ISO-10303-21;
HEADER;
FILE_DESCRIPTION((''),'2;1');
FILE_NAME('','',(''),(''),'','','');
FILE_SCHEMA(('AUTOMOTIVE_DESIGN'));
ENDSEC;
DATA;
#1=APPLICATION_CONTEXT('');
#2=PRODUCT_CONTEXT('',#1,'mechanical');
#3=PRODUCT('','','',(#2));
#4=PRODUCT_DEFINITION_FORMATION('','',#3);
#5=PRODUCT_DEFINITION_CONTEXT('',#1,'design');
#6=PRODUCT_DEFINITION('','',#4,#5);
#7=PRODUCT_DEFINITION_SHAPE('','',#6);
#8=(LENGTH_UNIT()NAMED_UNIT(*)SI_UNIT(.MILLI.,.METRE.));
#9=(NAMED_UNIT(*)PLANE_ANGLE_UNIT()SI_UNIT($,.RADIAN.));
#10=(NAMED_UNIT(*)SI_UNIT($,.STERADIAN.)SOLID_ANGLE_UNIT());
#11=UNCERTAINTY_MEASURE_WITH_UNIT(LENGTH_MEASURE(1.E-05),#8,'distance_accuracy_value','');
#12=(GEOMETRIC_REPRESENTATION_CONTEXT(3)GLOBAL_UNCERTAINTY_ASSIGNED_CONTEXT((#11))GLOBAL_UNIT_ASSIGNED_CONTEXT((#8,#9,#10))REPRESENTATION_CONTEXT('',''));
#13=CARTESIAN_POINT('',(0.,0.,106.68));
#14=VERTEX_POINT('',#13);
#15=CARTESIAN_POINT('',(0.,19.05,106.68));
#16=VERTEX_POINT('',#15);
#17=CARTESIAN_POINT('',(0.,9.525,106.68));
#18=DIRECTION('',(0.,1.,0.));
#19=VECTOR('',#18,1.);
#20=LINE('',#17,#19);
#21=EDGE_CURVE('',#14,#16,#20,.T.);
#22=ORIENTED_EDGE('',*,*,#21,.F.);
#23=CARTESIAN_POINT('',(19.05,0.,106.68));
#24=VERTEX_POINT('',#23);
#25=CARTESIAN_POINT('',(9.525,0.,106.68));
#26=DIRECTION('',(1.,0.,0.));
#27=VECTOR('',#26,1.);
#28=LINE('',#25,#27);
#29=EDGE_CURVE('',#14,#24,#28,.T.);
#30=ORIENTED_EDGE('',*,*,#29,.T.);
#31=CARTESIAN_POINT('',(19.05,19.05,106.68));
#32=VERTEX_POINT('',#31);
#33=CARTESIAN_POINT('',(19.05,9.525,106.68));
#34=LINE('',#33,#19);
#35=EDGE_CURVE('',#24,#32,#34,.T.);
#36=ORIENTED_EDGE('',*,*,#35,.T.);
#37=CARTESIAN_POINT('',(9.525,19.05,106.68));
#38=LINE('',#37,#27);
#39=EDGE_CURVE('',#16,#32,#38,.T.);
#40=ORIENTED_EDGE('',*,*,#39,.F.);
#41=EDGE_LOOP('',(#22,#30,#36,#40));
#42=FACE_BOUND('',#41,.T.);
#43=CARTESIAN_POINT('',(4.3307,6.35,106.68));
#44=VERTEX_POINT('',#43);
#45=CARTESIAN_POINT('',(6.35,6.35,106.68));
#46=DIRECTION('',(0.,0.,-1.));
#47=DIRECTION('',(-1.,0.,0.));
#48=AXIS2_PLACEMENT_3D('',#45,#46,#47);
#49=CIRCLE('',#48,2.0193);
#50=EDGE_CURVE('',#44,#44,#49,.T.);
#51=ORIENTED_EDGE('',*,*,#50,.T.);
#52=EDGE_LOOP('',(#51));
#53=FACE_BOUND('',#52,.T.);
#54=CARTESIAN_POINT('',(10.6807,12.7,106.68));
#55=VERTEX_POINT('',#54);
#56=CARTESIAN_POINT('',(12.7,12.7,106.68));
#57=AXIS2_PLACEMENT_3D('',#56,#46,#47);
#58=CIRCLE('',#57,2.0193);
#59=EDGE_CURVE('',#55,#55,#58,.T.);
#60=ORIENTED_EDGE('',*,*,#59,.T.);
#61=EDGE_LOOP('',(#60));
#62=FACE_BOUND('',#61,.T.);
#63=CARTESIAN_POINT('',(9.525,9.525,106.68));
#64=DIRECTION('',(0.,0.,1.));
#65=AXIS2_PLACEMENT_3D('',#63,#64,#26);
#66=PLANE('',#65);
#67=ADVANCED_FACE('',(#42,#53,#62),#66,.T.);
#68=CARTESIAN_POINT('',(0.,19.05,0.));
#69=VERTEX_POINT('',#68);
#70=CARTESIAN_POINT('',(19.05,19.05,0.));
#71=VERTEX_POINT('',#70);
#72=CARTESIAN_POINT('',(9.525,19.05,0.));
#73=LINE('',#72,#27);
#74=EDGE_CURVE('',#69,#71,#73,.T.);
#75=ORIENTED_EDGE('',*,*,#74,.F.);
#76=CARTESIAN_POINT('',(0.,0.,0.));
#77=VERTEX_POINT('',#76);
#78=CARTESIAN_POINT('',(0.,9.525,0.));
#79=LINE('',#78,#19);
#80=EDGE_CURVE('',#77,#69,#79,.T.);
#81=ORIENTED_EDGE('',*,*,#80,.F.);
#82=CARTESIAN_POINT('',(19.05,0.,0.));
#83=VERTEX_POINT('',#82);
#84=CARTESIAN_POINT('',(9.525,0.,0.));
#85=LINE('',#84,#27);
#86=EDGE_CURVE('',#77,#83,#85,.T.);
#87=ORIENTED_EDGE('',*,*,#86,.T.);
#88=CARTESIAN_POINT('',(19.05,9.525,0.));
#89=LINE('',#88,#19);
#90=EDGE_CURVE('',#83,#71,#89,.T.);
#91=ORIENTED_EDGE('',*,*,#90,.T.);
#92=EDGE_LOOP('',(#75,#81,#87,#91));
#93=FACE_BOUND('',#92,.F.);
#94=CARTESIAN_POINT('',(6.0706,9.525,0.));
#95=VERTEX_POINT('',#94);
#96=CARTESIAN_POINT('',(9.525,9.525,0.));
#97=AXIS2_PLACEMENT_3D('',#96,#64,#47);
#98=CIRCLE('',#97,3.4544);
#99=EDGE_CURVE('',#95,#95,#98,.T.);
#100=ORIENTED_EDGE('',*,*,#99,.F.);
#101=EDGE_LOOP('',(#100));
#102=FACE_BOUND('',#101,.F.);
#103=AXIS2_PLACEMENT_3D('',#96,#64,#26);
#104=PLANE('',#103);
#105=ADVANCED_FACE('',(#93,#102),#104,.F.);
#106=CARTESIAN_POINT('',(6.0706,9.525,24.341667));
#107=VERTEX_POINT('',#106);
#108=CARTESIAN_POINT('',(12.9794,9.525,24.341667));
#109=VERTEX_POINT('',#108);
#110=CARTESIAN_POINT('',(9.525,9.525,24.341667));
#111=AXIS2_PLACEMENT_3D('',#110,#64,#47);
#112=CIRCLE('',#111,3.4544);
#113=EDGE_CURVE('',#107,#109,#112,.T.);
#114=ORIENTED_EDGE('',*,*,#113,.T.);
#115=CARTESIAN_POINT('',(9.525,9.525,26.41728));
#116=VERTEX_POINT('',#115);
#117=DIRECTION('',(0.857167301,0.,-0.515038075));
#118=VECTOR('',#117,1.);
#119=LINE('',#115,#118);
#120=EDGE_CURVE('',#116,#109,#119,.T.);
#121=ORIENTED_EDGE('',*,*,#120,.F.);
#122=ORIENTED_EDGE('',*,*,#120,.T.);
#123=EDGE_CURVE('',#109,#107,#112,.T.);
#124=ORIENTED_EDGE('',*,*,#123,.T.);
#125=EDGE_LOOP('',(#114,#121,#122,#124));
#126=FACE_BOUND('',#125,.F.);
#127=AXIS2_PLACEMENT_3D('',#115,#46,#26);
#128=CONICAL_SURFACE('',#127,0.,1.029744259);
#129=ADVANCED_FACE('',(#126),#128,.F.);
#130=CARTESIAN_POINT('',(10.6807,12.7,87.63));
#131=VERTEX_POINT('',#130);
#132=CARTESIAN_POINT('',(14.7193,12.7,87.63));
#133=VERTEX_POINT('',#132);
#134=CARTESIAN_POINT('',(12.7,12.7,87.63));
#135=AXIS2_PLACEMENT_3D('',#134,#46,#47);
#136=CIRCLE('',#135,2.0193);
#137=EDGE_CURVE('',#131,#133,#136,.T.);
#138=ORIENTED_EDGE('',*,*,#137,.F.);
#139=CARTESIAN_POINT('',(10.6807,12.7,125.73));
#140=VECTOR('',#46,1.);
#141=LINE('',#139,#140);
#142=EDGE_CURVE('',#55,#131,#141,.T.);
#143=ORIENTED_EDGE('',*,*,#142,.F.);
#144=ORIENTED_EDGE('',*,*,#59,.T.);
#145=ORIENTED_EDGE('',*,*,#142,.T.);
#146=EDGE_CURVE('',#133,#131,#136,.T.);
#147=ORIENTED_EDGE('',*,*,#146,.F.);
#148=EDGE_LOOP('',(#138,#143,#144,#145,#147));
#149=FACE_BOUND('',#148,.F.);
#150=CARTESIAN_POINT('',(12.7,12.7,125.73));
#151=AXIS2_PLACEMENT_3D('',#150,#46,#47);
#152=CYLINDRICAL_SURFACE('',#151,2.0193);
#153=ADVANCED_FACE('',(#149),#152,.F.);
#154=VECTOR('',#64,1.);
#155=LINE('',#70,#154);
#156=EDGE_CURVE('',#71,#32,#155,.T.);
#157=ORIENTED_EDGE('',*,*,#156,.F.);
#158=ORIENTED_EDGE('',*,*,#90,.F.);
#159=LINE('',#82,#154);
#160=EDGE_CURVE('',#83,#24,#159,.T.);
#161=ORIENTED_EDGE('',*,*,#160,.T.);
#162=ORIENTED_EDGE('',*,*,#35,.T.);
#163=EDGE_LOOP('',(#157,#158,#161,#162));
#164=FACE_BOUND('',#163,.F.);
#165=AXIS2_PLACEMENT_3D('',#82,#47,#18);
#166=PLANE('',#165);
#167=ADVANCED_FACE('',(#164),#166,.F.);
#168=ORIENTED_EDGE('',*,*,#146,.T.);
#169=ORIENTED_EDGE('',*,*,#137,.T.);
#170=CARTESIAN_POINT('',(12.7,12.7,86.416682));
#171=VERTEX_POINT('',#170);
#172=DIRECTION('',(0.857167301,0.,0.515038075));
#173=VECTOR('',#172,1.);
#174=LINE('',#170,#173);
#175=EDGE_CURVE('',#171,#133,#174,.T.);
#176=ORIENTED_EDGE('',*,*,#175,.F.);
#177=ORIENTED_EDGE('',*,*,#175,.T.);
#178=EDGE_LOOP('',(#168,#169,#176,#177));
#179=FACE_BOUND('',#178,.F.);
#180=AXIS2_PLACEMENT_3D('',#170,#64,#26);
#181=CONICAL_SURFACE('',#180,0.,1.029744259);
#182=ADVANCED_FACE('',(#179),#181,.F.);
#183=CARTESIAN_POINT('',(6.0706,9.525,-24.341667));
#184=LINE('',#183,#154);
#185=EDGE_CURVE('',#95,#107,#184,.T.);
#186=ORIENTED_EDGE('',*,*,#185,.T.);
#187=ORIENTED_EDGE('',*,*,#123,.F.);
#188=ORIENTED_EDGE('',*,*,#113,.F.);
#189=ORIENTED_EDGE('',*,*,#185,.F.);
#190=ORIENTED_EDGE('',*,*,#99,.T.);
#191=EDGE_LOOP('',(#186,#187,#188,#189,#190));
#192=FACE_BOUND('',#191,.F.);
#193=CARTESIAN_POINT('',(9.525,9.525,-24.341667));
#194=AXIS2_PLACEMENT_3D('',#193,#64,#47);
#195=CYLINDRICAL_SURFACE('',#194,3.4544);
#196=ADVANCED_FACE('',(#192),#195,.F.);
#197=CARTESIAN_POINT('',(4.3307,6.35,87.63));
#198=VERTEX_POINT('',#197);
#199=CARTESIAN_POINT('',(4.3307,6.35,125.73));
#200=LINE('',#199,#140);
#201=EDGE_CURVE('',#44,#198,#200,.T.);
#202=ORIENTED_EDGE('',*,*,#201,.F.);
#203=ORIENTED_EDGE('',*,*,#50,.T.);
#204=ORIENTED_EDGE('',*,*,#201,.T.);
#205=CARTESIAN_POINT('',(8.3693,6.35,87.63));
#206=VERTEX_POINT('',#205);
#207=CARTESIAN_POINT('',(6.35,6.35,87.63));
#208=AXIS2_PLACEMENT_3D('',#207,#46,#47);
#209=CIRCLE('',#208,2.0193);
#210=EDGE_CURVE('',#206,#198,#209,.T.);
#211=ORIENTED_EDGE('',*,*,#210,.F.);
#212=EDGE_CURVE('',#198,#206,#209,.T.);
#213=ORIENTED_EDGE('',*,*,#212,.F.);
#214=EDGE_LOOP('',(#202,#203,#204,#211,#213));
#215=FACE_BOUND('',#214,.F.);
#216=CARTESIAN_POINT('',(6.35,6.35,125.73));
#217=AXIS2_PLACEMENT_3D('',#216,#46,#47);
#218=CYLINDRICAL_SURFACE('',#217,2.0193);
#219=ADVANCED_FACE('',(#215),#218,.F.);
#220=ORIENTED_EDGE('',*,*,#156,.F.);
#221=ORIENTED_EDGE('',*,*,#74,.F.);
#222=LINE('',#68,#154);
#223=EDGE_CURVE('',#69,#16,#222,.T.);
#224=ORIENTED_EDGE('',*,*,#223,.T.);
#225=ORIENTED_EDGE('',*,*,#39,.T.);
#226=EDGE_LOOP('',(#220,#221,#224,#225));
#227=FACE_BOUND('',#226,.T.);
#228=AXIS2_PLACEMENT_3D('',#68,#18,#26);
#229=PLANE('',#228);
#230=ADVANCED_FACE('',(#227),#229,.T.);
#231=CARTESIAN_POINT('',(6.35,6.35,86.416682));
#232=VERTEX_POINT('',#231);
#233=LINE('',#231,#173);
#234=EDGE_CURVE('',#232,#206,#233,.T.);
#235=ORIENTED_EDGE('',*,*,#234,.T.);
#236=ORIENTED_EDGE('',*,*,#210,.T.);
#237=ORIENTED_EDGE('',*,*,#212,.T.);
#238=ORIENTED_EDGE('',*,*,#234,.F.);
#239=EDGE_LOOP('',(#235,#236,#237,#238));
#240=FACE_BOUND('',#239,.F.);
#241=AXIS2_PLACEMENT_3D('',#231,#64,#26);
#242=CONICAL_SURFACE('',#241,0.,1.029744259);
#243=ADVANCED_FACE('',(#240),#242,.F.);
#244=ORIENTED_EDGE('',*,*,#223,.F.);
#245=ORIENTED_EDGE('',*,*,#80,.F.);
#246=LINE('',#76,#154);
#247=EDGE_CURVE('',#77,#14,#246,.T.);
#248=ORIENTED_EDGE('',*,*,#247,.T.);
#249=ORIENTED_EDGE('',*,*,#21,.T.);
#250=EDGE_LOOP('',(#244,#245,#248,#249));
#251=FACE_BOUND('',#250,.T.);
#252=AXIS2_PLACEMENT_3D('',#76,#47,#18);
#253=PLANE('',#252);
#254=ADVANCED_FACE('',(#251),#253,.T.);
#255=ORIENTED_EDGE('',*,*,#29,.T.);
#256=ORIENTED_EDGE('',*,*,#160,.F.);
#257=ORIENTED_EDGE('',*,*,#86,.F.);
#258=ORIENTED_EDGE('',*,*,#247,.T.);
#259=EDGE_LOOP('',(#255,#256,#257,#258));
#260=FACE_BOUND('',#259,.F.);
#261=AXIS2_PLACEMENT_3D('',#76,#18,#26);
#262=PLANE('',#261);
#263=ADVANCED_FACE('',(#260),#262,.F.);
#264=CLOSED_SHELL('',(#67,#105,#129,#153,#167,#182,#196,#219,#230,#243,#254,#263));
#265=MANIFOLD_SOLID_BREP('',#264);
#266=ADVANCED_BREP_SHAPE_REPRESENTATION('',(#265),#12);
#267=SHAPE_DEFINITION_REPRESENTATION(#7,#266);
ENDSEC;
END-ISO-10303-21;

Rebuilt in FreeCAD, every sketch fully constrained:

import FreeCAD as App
import Part
import Sketcher
Q = App.Units.Quantity


def add_polygon(sketch, points):
    """Adds a closed chain of lines whose ends are joined by coincident constraints."""
    first, n = sketch.GeometryCount, len(points)
    for a, b in zip(points, points[1:] + points[:1]):
        sketch.addGeometry(Part.LineSegment(App.Vector(*a, 0), App.Vector(*b, 0)), False)
    for i in range(n):
        sketch.addConstraint(Sketcher.Constraint("Coincident", first + i, 2, first + (i + 1) % n, 1))

doc = App.newDocument("Part")
params = doc.addObject("Spreadsheet::Sheet", "Params")
for row, (alias, value) in enumerate([
    ("sketch1_width", "0.75 in"),
    ("pad1_length", "4.2 in"),
    ("sketch2_diameter", "0.159 in"),
    ("hole_diameter", "0.159 in"),
    ("hole_depth", "0.75 in"),
    ("sketch3_diameter", "0.272 in"),
    ("hole2_diameter", "0.272 in"),
    ("hole2_depth", "24.341667 mm"),
], start=1):
    params.set(f"A{row}", alias)
    params.set(f"B{row}", "=" + value)
    params.setAlias(f"B{row}", alias)

body = doc.addObject("PartDesign::Body", "Body")

# Sketch on XY plane
sketch1 = body.newObject("Sketcher::SketchObject", "Sketch")
sketch1.AttachmentSupport = (doc.getObject("XY_Plane"), [""])
sketch1.MapMode = "FlatFace"
add_polygon(sketch1, [(0, 19), (0, 0), (19, 0), (19, 19)])  # lines 0-3
sketch1.addConstraint(Sketcher.Constraint("Vertical", 0))
sketch1.addConstraint(Sketcher.Constraint("Horizontal", 1))
sketch1.addConstraint(Sketcher.Constraint("Vertical", 2))
sketch1.addConstraint(Sketcher.Constraint("Horizontal", 3))
sketch1.addConstraint(Sketcher.Constraint("Coincident", 0, 2, -1, 1))
sketch1.addConstraint(Sketcher.Constraint("Equal", 3, 0))
sketch1.addConstraint(Sketcher.Constraint("DistanceX", 1, 1, 1, 2, Q("0.75 in")))
sketch1.setExpression("Constraints[10]", "Params.sketch1_width")
pad1 = body.newObject("PartDesign::Pad", "Pad")
pad1.Profile = sketch1
pad1.setExpression("Length", "Params.pad1_length")

# Sketch on XY plane
sketch2 = body.newObject("Sketcher::SketchObject", "Sketch001")
sketch2.AttachmentSupport = (doc.getObject("XY_Plane"), [""])
sketch2.MapMode = "FlatFace"
sketch2.AttachmentOffset = App.Placement(App.Vector(0, 0, 4.2 * 25.4), App.Rotation())
sketch2.addGeometry(Part.Circle(App.Vector(12.7, 12.7, 0), App.Vector(0, 0, 1), 2), False)
sketch2.addGeometry(Part.Circle(App.Vector(6.3, 6.3, 0), App.Vector(0, 0, 1), 2), False)
sketch2.addConstraint(Sketcher.Constraint("Equal", 0, 1))
sketch2.addConstraint(Sketcher.Constraint("Diameter", 0, Q("0.159 in")))
sketch2.addConstraint(Sketcher.Constraint("DistanceX", -1, 1, 0, 3, Q("0.5 in")))
sketch2.addConstraint(Sketcher.Constraint("DistanceY", -1, 1, 0, 3, Q("0.5 in")))
sketch2.addConstraint(Sketcher.Constraint("DistanceX", -1, 1, 1, 3, Q("0.25 in")))
sketch2.addConstraint(Sketcher.Constraint("DistanceY", -1, 1, 1, 3, Q("0.25 in")))
sketch2.setExpression("Constraints[1]", "Params.sketch2_diameter")
doc.recompute()
hole = body.newObject("PartDesign::Hole", "Hole")
hole.Profile = sketch2
hole.ThreadType = "None"
hole.setExpression("Diameter", "Params.hole_diameter")
hole.DepthType = "Dimension"
hole.setExpression("Depth", "Params.hole_depth")
hole.DrillPoint = "Angled"
hole.DrillPointAngle = 118

# Sketch on XY plane
sketch3 = body.newObject("Sketcher::SketchObject", "Sketch002")
sketch3.AttachmentSupport = (doc.getObject("XY_Plane"), [""])
sketch3.MapMode = "FlatFace"
sketch3.addGeometry(Part.Circle(App.Vector(9.5, 9.5, 0), App.Vector(0, 0, 1), 3.5), False)
sketch3.addConstraint(Sketcher.Constraint("Diameter", 0, Q("0.272 in")))
sketch3.addConstraint(Sketcher.Constraint("DistanceX", -1, 1, 0, 3, Q("0.375 in")))
sketch3.addConstraint(Sketcher.Constraint("DistanceY", -1, 1, 0, 3, Q("0.375 in")))
sketch3.setExpression("Constraints[0]", "Params.sketch3_diameter")
doc.recompute()
hole2 = body.newObject("PartDesign::Hole", "Hole001")
hole2.Profile = sketch3
hole2.ThreadType = "None"
hole2.setExpression("Diameter", "Params.hole2_diameter")
hole2.DepthType = "Dimension"
hole2.setExpression("Depth", "Params.hole2_depth")
hole2.DrillPoint = "Angled"
hole2.DrillPointAngle = 118
hole2.Reversed = True

doc.recompute()
